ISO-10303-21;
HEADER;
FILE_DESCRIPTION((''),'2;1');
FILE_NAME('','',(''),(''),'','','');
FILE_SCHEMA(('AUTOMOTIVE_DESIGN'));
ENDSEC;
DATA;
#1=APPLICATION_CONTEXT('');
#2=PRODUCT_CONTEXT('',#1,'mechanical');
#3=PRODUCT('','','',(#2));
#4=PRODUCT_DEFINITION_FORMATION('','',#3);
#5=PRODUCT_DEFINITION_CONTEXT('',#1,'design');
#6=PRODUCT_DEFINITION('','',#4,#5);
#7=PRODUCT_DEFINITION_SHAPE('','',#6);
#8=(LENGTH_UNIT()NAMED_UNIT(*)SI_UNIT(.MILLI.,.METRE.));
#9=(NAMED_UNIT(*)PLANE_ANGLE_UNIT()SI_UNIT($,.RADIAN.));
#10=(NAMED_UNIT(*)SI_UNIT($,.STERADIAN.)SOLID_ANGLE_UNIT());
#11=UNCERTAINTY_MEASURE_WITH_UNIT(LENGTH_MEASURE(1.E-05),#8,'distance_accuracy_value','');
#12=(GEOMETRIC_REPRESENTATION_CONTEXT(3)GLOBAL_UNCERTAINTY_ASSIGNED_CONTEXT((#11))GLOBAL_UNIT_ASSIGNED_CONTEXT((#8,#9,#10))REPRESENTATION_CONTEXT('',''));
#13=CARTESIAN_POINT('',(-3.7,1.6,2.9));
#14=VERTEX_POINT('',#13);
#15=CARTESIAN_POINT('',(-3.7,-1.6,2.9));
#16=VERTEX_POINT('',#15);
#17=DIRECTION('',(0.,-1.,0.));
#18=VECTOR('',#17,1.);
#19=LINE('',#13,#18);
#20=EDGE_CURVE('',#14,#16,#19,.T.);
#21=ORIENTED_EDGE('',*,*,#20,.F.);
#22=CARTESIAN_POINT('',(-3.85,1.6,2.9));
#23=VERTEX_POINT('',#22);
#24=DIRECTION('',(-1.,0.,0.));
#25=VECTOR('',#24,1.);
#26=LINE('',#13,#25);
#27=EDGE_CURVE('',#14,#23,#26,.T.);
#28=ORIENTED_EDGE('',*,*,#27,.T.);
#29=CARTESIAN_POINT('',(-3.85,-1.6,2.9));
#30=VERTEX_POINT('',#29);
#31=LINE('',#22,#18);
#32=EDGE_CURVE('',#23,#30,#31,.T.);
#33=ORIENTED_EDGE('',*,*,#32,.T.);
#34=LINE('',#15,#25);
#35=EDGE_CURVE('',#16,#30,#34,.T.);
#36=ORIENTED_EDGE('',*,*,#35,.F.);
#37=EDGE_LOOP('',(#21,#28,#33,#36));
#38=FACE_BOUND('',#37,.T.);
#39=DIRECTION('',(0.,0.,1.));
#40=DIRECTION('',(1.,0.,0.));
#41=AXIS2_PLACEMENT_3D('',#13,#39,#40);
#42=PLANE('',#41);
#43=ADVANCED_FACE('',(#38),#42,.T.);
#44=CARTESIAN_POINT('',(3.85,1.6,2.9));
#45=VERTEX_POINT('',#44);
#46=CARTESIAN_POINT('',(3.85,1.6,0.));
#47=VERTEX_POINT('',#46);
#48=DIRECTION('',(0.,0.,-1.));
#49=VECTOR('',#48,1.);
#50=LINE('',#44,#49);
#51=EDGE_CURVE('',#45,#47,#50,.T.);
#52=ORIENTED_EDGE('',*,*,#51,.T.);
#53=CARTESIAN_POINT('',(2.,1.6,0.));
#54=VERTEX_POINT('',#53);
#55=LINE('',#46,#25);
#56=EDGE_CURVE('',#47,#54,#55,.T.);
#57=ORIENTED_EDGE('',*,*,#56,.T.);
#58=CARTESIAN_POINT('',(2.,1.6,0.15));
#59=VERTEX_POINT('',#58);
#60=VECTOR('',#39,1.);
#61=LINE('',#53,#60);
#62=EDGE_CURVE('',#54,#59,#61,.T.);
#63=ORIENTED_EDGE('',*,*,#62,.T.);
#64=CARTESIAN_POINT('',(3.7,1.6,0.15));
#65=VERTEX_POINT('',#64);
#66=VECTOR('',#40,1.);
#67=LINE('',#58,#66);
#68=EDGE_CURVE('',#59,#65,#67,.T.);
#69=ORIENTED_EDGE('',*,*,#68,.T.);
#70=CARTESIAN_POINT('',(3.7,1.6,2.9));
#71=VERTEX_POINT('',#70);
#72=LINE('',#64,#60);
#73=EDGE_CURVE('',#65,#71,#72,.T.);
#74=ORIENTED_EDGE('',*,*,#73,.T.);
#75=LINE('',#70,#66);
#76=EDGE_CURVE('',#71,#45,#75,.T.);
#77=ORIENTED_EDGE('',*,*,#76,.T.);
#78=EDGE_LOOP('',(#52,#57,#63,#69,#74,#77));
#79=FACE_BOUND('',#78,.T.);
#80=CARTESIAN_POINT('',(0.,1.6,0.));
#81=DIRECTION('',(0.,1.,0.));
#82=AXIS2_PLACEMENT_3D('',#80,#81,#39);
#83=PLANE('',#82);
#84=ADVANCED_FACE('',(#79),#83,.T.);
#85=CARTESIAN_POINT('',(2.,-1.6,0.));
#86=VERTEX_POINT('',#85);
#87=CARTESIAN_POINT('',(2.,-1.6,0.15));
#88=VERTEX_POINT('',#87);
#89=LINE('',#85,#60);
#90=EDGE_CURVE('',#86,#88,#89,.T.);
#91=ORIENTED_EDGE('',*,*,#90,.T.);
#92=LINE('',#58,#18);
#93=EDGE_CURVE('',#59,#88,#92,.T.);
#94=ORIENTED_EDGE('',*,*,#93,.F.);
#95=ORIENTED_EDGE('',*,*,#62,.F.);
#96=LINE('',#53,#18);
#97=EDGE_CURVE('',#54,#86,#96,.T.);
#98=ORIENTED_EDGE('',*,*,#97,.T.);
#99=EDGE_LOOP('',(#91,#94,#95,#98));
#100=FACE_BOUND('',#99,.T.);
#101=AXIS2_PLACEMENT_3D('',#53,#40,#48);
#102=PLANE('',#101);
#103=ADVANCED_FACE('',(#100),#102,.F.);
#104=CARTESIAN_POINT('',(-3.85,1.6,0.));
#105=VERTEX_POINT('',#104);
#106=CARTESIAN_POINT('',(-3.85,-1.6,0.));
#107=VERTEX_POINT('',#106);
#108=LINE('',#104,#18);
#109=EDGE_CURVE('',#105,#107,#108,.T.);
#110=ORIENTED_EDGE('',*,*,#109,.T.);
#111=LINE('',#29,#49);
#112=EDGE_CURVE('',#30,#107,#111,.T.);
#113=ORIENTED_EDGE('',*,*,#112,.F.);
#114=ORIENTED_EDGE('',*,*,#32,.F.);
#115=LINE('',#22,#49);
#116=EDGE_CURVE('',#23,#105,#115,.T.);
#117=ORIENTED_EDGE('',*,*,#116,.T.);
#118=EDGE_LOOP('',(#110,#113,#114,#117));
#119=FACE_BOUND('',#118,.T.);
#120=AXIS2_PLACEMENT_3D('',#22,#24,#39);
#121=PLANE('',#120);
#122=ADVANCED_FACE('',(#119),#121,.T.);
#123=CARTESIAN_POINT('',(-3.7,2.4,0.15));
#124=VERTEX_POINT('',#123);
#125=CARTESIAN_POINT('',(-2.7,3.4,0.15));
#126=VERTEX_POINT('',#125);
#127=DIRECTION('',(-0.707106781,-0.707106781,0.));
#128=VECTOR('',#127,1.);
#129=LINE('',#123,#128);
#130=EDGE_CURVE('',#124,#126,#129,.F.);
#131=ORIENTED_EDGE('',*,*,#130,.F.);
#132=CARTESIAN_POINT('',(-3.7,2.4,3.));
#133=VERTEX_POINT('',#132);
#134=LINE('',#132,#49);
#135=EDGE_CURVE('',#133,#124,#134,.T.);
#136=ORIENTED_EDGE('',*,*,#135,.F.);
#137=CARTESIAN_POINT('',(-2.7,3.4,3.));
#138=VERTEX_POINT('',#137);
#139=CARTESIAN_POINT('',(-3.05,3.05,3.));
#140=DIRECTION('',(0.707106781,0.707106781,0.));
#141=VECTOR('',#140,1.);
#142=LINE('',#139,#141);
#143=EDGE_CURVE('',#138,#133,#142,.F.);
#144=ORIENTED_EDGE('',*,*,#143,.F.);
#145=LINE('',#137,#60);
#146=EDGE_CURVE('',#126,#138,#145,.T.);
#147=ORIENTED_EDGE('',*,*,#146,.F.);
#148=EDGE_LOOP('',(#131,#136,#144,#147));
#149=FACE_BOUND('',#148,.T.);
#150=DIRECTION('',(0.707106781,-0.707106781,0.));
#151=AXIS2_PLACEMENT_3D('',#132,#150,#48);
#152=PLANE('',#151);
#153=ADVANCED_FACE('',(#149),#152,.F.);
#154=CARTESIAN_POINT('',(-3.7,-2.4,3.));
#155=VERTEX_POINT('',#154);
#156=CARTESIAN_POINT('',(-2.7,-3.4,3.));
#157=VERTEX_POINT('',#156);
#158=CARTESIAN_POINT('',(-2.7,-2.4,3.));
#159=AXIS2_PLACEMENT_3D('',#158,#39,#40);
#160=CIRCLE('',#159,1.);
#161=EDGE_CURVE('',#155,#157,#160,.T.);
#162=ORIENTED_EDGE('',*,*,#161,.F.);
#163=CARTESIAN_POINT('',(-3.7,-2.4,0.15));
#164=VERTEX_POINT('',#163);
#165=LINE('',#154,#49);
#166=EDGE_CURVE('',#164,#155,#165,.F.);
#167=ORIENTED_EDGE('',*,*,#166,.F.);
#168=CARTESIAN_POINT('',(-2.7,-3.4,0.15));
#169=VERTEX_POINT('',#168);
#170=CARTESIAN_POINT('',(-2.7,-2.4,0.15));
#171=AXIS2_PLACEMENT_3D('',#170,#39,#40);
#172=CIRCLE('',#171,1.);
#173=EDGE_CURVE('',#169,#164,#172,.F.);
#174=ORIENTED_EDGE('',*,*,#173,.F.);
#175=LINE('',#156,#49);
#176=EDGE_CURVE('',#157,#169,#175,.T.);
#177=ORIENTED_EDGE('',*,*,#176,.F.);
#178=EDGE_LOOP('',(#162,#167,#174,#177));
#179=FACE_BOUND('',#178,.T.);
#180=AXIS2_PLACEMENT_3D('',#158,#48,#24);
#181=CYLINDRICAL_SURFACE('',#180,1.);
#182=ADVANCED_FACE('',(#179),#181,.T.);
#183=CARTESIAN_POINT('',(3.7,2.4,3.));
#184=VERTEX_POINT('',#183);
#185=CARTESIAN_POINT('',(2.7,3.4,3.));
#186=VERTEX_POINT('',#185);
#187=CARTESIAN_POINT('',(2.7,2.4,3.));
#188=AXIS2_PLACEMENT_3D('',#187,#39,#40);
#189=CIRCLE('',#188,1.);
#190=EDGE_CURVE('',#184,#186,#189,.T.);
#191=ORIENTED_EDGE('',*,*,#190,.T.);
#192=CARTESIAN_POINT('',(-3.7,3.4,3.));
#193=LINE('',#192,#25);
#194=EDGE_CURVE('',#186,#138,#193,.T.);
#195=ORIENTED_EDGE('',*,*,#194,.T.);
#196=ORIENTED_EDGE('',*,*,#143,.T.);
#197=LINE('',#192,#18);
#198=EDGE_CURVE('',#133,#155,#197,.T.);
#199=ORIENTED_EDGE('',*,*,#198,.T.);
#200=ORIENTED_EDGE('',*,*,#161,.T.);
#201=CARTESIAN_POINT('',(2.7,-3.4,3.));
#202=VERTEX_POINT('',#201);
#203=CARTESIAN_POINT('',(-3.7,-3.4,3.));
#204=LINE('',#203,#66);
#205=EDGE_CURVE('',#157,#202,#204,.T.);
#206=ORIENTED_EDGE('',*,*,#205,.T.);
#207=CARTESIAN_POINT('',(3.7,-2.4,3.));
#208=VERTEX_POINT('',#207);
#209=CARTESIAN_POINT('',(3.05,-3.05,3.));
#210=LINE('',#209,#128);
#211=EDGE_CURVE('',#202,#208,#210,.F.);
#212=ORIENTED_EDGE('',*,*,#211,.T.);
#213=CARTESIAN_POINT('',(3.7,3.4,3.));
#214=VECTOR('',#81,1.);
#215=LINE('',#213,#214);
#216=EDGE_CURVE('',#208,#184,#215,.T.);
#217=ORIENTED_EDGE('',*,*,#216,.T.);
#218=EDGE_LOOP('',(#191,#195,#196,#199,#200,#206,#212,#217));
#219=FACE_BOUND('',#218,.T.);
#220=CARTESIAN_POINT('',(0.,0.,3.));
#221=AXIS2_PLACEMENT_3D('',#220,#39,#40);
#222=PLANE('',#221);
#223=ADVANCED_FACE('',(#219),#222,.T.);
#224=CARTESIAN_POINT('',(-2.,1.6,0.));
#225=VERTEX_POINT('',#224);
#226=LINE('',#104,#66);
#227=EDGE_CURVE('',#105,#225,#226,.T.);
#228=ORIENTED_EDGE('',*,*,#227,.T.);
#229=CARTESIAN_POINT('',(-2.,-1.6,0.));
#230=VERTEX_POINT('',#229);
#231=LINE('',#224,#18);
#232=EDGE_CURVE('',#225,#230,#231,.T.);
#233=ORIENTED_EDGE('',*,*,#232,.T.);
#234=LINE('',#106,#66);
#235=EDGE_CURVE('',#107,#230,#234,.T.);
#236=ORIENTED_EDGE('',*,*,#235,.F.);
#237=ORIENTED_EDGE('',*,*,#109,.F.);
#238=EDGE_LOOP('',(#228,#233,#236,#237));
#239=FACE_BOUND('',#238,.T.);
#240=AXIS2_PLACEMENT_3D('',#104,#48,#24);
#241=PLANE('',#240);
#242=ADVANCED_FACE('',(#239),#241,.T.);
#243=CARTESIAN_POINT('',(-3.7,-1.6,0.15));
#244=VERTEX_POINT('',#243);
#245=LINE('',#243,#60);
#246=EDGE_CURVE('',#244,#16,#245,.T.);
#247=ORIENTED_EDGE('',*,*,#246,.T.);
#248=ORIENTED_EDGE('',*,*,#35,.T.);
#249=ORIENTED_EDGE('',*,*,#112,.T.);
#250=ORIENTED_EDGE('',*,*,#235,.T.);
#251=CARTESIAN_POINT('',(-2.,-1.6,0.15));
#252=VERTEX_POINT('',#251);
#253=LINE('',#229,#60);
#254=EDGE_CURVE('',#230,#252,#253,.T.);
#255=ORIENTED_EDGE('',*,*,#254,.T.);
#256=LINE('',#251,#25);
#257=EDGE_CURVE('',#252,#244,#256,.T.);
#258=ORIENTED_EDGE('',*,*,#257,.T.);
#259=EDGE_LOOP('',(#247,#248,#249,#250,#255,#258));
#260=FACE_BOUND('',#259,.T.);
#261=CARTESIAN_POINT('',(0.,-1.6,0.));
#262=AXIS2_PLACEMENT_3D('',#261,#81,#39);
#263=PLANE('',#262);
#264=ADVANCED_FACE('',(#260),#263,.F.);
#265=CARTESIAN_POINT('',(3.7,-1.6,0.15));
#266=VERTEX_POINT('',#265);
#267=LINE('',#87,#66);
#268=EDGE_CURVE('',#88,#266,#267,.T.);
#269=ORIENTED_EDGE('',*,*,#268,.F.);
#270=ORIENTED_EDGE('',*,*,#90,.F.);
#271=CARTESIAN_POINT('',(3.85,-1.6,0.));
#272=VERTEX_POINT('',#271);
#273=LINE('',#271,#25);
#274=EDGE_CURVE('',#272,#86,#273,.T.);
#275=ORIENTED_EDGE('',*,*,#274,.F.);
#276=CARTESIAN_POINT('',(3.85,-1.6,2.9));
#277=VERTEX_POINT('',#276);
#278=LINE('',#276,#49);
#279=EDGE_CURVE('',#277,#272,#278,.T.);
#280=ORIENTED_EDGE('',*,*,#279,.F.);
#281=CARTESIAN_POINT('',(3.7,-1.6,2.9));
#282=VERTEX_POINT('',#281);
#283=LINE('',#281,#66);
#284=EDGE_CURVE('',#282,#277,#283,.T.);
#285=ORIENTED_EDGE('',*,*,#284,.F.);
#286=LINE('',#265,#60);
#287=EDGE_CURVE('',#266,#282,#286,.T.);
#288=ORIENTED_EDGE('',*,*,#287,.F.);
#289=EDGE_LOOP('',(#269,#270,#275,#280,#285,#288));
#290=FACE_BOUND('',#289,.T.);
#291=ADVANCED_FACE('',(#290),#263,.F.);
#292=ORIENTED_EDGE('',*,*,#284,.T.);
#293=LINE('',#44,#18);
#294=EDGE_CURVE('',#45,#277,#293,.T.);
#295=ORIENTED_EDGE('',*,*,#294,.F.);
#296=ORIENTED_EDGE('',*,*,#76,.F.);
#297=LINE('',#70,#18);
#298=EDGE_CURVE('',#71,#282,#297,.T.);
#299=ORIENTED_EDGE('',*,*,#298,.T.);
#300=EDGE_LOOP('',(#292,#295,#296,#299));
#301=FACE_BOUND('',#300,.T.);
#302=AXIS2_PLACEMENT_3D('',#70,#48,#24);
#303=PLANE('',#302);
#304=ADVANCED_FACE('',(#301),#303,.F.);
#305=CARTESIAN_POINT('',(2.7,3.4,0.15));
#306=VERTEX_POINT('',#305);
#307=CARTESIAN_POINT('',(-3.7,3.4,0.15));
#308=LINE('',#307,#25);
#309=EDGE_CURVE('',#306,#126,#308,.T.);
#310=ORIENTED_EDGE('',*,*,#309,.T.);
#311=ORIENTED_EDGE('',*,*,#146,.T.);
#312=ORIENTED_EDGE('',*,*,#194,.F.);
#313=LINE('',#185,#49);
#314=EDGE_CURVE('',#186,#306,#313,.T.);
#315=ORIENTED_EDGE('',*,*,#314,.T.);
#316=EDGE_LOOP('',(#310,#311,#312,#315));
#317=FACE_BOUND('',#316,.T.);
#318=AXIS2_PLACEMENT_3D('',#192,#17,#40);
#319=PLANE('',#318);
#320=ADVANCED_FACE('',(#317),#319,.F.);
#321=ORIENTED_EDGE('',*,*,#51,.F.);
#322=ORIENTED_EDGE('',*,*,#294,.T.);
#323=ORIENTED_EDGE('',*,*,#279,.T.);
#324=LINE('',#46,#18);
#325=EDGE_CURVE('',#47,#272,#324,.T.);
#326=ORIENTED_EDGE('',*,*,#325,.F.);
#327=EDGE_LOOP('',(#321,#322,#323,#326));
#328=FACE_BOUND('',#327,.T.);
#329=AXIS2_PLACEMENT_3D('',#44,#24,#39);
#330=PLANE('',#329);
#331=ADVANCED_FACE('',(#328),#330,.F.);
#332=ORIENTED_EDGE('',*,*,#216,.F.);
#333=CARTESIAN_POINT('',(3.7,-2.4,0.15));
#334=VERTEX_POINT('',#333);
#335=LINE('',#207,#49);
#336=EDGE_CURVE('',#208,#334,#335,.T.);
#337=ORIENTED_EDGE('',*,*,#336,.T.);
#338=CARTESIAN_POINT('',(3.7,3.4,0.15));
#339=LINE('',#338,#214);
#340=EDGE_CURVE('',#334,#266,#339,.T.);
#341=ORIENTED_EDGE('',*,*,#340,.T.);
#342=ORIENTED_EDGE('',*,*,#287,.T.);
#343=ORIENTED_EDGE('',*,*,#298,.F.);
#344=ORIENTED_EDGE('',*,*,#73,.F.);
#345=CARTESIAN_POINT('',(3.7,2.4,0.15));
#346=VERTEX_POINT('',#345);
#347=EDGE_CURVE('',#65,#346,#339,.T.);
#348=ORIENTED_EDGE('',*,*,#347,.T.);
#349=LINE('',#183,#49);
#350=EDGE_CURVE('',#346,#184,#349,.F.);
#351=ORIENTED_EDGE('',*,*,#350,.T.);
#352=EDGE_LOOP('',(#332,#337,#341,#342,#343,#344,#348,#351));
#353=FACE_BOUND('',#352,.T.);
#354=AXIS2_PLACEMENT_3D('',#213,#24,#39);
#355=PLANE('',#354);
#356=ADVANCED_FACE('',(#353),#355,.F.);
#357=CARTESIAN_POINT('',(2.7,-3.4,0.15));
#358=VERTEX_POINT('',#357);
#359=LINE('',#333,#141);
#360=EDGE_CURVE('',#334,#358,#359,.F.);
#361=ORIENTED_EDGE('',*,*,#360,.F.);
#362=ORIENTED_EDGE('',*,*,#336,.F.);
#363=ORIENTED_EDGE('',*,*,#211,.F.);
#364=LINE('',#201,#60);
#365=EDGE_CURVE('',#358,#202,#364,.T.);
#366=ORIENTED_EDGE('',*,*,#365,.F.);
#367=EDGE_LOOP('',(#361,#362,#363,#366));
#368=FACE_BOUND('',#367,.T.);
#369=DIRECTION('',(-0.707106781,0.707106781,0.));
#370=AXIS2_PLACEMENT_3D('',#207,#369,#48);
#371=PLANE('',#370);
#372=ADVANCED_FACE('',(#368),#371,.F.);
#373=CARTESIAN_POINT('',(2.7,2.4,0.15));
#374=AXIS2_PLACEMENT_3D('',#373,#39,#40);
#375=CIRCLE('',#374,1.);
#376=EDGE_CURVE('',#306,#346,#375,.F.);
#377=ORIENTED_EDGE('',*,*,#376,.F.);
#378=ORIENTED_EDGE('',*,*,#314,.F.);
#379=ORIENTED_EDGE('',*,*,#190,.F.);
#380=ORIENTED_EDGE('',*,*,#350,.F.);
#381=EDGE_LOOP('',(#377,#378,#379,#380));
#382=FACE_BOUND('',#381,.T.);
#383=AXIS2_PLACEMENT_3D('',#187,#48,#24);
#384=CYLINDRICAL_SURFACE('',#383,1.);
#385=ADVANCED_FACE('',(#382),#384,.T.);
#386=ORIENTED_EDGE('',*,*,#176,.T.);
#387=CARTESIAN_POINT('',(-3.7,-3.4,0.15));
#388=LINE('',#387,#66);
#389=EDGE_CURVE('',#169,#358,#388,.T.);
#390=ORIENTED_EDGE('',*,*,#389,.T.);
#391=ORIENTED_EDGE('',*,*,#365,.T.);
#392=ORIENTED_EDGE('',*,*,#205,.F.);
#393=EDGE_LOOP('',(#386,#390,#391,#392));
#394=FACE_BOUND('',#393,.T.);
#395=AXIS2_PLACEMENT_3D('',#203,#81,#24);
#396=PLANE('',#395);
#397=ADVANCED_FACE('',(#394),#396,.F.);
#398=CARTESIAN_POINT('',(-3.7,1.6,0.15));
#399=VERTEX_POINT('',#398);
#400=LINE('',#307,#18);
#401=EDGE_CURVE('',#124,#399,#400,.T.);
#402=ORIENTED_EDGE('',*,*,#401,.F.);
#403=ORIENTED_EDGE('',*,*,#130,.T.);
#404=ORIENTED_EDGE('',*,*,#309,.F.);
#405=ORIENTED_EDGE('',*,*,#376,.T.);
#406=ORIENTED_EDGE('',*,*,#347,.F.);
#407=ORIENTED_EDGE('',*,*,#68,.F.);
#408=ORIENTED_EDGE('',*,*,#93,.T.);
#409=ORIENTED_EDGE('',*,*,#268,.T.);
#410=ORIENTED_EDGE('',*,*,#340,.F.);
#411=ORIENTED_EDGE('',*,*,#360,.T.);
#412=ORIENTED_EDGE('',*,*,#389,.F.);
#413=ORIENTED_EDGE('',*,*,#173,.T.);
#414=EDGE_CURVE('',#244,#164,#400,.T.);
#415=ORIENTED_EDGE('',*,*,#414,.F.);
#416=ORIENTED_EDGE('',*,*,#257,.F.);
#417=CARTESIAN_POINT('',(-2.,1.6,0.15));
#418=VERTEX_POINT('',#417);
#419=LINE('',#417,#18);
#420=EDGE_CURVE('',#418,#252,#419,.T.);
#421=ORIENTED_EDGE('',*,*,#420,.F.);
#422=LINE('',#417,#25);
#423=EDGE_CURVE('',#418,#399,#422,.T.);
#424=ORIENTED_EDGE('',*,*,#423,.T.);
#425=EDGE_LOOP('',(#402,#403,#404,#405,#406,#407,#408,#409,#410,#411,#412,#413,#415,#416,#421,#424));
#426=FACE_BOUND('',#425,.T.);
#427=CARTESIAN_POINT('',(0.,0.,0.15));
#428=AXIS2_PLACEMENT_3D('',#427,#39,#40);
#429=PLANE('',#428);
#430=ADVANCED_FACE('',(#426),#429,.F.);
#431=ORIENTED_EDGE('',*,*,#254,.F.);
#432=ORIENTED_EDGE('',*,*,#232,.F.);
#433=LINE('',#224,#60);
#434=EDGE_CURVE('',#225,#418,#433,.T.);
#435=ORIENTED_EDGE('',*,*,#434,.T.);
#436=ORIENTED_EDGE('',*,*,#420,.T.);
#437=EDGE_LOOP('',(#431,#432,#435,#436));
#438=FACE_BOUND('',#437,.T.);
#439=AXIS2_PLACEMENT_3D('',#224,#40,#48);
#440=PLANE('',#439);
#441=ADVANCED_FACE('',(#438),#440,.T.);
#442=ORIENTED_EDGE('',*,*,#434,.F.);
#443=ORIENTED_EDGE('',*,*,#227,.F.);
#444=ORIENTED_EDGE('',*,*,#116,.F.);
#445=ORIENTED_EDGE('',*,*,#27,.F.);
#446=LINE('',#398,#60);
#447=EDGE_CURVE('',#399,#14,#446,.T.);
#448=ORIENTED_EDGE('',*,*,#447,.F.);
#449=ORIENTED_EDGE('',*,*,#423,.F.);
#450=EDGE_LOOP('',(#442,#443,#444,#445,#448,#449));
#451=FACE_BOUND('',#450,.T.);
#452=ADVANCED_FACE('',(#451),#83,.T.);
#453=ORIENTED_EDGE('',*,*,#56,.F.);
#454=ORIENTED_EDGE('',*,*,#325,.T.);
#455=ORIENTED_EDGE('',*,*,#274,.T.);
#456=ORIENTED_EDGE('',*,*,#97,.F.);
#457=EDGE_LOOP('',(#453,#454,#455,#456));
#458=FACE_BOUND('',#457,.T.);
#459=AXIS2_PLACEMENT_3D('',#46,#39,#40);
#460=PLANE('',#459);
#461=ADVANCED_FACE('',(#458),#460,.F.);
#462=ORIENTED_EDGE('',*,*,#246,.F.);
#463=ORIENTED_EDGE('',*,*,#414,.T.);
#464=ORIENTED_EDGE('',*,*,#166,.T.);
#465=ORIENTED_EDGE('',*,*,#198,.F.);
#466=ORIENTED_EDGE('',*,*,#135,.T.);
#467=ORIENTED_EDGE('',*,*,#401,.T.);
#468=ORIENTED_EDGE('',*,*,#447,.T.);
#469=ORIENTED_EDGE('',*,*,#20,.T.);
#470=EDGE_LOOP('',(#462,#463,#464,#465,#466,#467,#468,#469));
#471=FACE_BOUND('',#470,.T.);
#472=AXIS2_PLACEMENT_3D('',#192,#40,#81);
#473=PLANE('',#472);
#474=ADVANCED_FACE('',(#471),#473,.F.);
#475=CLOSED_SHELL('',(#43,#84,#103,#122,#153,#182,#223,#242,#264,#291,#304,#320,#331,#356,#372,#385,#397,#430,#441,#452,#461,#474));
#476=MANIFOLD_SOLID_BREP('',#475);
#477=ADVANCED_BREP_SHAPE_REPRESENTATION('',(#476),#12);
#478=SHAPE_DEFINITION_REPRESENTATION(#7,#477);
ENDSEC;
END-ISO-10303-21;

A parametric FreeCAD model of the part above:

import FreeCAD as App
import Part
import Sketcher
Q = App.Units.Quantity


def edges_at(feature, points):
    """Names of the edges that pass closest to the given points."""
    edges = feature.Shape.Edges
    near = lambda p: min(range(len(edges)), key=lambda i: edges[i].distToShape(Part.Vertex(*p))[0])
    return sorted({f"Edge{near(p) + 1}" for p in points})


def add_polygon(sketch, points):
    """Adds a closed chain of lines whose ends are joined by coincident constraints."""
    first, n = sketch.GeometryCount, len(points)
    for a, b in zip(points, points[1:] + points[:1]):
        sketch.addGeometry(Part.LineSegment(App.Vector(*a, 0), App.Vector(*b, 0)), False)
    for i in range(n):
        sketch.addConstraint(Sketcher.Constraint("Coincident", first + i, 2, first + (i + 1) % n, 1))

doc = App.newDocument("Part")
body = doc.addObject("PartDesign::Body", "Body")

# Sketch on XY plane
sketch1 = body.newObject("Sketcher::SketchObject", "Sketch")
sketch1.AttachmentSupport = (doc.getObject("XY_Plane"), [""])
sketch1.MapMode = "FlatFace"
sketch1.AttachmentOffset = App.Placement(App.Vector(0, 0, 0.15), App.Rotation())
add_polygon(sketch1, [(-4, 3), (-4, -3), (4, -3), (4, 3)])  # lines 0-3
sketch1.addConstraint([
    Sketcher.Constraint("Vertical", 0),
    Sketcher.Constraint("Horizontal", 1),
    Sketcher.Constraint("Vertical", 2),
    Sketcher.Constraint("Horizontal", 3),
    Sketcher.Constraint("Symmetric", 0, 2, 2, 2, -1, 1),
    Sketcher.Constraint("DistanceX", 1, 1, 1, 2, Q("7.4 mm")),
    Sketcher.Constraint("DistanceY", 0, 2, 0, 1, Q("6.8 mm")),
])
pad1 = body.newObject("PartDesign::Pad", "Pad")
pad1.Profile = sketch1
pad1.Length = 2.85
doc.recompute()

fillet = body.newObject("PartDesign::Fillet", "Fillet")
fillet.Base = (pad1, edges_at(pad1, [(-3.7, -3.4, 1.575), (3.7, 3.4, 1.575)]))
fillet.Radius = 1
doc.recompute()

chamfer = body.newObject("PartDesign::Chamfer", "Chamfer")
chamfer.Base = (fillet, edges_at(fillet, [(3.7, -3.4, 1.575), (-3.7, 3.4, 1.575)]))
chamfer.Size = 1

# Sketch on XZ plane
sketch2 = body.newObject("Sketcher::SketchObject", "Sketch001")
sketch2.AttachmentSupport = (doc.getObject("XZ_Plane"), [""])
sketch2.MapMode = "FlatFace"
add_polygon(sketch2, [(2, 0.15), (3.7, 0.15), (3.7, 2.9), (3.85, 2.9), (3.85, 0), (2, 0)])  # lines 0-5
sketch2.addConstraint([
    Sketcher.Constraint("Horizontal", 0),
    Sketcher.Constraint("Vertical", 1),
    Sketcher.Constraint("Horizontal", 2),
    Sketcher.Constraint("Vertical", 3),
    Sketcher.Constraint("Horizontal", 4),
    Sketcher.Constraint("Vertical", 5),
    Sketcher.Constraint("PointOnObject", 3, 2, -1),
    Sketcher.Constraint("Equal", 2, 5),
    Sketcher.Constraint("DistanceX", 0, 1, 0, 2, Q("1.7 mm")),
    Sketcher.Constraint("DistanceY", 3, 2, 3, 1, Q("2.9 mm")),
    Sketcher.Constraint("DistanceX", -1, 1, 4, 2, Q("2 mm")),
    Sketcher.Constraint("DistanceX", 2, 1, 2, 2, Q("0.15 mm")),
])
pad2 = body.newObject("PartDesign::Pad", "Pad001")
pad2.Profile = sketch2
pad2.Length = 3.2
pad2.Midplane = True
doc.recompute()

mirrored = body.newObject("PartDesign::Mirrored", "Mirrored")
mirrored.Originals = [pad2]
mirrored.MirrorPlane = (doc.getObject("YZ_Plane"), [""])
body.Tip = mirrored

doc.recompute()
